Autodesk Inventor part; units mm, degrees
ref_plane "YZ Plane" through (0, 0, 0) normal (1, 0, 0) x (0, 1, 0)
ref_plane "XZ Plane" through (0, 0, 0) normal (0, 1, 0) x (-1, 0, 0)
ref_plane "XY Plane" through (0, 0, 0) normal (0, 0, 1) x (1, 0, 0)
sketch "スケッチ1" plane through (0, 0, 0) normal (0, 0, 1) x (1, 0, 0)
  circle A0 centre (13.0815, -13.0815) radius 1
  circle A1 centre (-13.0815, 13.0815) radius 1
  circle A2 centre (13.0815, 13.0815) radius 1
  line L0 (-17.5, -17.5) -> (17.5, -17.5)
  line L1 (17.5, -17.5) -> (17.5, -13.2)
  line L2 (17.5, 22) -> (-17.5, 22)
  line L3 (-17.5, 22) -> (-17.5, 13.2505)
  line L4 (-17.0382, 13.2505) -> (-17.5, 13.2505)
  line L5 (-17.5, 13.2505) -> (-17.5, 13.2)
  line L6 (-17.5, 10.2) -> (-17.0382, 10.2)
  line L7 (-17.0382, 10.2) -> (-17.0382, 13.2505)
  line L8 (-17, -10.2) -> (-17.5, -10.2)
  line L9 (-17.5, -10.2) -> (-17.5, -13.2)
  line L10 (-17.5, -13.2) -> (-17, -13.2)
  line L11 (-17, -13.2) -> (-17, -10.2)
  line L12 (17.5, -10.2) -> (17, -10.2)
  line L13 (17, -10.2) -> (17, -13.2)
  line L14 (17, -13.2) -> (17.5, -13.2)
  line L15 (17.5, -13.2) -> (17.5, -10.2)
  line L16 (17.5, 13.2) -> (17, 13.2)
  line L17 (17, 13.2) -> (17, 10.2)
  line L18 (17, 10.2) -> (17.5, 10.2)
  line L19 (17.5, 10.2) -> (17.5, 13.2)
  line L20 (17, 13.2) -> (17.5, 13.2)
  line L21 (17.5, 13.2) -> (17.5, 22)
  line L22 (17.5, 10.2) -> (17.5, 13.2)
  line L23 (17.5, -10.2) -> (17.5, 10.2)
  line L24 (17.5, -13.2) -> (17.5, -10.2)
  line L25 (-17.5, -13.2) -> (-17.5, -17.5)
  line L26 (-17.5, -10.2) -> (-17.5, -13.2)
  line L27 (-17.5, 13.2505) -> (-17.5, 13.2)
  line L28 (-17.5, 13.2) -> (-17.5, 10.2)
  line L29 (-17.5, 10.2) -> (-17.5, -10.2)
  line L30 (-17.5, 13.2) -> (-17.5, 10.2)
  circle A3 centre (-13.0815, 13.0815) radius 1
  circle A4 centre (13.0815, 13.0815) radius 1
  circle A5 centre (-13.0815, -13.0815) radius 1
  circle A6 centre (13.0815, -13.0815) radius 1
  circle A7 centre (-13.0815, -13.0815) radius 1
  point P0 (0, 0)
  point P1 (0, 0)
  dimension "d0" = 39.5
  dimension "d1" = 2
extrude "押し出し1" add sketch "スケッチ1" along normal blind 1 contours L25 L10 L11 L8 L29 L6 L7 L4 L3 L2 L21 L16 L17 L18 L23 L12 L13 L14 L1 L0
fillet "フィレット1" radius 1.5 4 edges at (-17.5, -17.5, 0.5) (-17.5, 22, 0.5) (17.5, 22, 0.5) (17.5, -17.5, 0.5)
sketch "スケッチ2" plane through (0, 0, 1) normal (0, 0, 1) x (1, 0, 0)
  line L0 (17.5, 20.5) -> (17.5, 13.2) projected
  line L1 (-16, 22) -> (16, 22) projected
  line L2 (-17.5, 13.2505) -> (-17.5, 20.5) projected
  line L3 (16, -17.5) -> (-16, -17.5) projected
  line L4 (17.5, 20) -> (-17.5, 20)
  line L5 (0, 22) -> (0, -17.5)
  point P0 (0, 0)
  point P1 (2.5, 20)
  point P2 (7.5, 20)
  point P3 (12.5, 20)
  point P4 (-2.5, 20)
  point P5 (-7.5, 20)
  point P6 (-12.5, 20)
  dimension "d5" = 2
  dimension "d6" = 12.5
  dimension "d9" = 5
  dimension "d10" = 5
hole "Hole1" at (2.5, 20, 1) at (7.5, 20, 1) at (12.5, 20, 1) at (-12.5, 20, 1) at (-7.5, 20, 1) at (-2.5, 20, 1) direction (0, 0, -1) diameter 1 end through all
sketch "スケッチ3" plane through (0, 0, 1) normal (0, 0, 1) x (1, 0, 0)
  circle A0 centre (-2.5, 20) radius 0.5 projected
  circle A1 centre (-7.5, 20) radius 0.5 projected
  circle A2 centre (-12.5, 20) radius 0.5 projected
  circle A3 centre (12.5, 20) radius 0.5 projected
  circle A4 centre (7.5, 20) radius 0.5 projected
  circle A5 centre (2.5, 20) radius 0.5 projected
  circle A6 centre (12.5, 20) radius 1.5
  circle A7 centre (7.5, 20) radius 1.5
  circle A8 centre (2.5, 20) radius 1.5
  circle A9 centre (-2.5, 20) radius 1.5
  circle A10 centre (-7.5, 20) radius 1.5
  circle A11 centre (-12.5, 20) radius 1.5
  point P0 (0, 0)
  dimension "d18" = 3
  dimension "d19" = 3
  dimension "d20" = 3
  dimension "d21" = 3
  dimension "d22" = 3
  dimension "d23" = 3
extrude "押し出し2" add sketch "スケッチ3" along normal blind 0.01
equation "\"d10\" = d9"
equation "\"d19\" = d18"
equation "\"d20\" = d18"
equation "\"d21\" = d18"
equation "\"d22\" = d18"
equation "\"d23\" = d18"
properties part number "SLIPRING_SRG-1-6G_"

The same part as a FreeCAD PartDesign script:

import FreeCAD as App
import Part
import Sketcher

V = App.Vector


def edges_at(feature, points):
    """Names of the edges that pass closest to the given points."""
    edges = feature.Shape.Edges
    near = lambda p: min(range(len(edges)), key=lambda i: edges[i].distToShape(Part.Vertex(*p))[0])
    return sorted({f"Edge{near(p) + 1}" for p in points})

doc = App.newDocument("Part")
body = doc.addObject("PartDesign::Body", "Body")

# Sketch on XY plane
sketch1 = doc.addObject("Sketcher::SketchObject", "Sketch")
body.addObject(sketch1)
sketch1.AttachmentSupport = (doc.XY_Plane, [""])
sketch1.MapMode = "FlatFace"
sketch1.addGeometry(Part.LineSegment(V(-17.5, -13.2, 0), V(-17.5, -17.5, 0)), False)
sketch1.addGeometry(Part.LineSegment(V(-17.5, -17.5, 0), V(17.5, -17.5, 0)), False)
sketch1.addGeometry(Part.LineSegment(V(17.5, -17.5, 0), V(17.5, -13.2, 0)), False)
sketch1.addGeometry(Part.LineSegment(V(17.5, -13.2, 0), V(17, -13.2, 0)), False)
sketch1.addGeometry(Part.LineSegment(V(17, -13.2, 0), V(17, -10.2, 0)), False)
sketch1.addGeometry(Part.LineSegment(V(17, -10.2, 0), V(17.5, -10.2, 0)), False)
sketch1.addGeometry(Part.LineSegment(V(17.5, -10.2, 0), V(17.5, 10.2, 0)), False)
sketch1.addGeometry(Part.LineSegment(V(17.5, 10.2, 0), V(17, 10.2, 0)), False)
sketch1.addGeometry(Part.LineSegment(V(17, 10.2, 0), V(17, 13.2, 0)), False)
sketch1.addGeometry(Part.LineSegment(V(17, 13.2, 0), V(17.5, 13.2, 0)), False)
sketch1.addGeometry(Part.LineSegment(V(17.5, 13.2, 0), V(17.5, 22, 0)), False)
sketch1.addGeometry(Part.LineSegment(V(17.5, 22, 0), V(-17.5, 22, 0)), False)
sketch1.addGeometry(Part.LineSegment(V(-17.5, 22, 0), V(-17.5, 13.25, 0)), False)
sketch1.addGeometry(Part.LineSegment(V(-17.5, 13.25, 0), V(-17.04, 13.25, 0)), False)
sketch1.addGeometry(Part.LineSegment(V(-17.04, 13.25, 0), V(-17.04, 10.2, 0)), False)
sketch1.addGeometry(Part.LineSegment(V(-17.04, 10.2, 0), V(-17.5, 10.2, 0)), False)
sketch1.addGeometry(Part.LineSegment(V(-17.5, 10.2, 0), V(-17.5, -10.2, 0)), False)
sketch1.addGeometry(Part.LineSegment(V(-17.5, -10.2, 0), V(-17, -10.2, 0)), False)
sketch1.addGeometry(Part.LineSegment(V(-17, -10.2, 0), V(-17, -13.2, 0)), False)
sketch1.addGeometry(Part.LineSegment(V(-17, -13.2, 0), V(-17.5, -13.2, 0)), False)
sketch1.addGeometry(Part.Circle(V(-13.08, -13.08, 0), V(0, 0, 1), 1), False)
sketch1.addGeometry(Part.Circle(V(13.08, -13.08, 0), V(0, 0, 1), 1), False)
sketch1.addGeometry(Part.Circle(V(-13.08, 13.08, 0), V(0, 0, 1), 1), False)
sketch1.addGeometry(Part.Circle(V(13.08, 13.08, 0), V(0, 0, 1), 1), False)
sketch1.addConstraint(Sketcher.Constraint("Coincident", 0, 2, 1, 1))
sketch1.addConstraint(Sketcher.Constraint("Coincident", 1, 2, 2, 1))
sketch1.addConstraint(Sketcher.Constraint("Coincident", 2, 2, 3, 1))
sketch1.addConstraint(Sketcher.Constraint("Coincident", 3, 2, 4, 1))
sketch1.addConstraint(Sketcher.Constraint("Coincident", 4, 2, 5, 1))
sketch1.addConstraint(Sketcher.Constraint("Coincident", 5, 2, 6, 1))
sketch1.addConstraint(Sketcher.Constraint("Coincident", 6, 2, 7, 1))
sketch1.addConstraint(Sketcher.Constraint("Coincident", 7, 2, 8, 1))
sketch1.addConstraint(Sketcher.Constraint("Coincident", 8, 2, 9, 1))
sketch1.addConstraint(Sketcher.Constraint("Coincident", 9, 2, 10, 1))
sketch1.addConstraint(Sketcher.Constraint("Coincident", 10, 2, 11, 1))
sketch1.addConstraint(Sketcher.Constraint("Coincident", 11, 2, 12, 1))
sketch1.addConstraint(Sketcher.Constraint("Coincident", 12, 2, 13, 1))
sketch1.addConstraint(Sketcher.Constraint("Coincident", 13, 2, 14, 1))
sketch1.addConstraint(Sketcher.Constraint("Coincident", 14, 2, 15, 1))
sketch1.addConstraint(Sketcher.Constraint("Coincident", 15, 2, 16, 1))
sketch1.addConstraint(Sketcher.Constraint("Coincident", 16, 2, 17, 1))
sketch1.addConstraint(Sketcher.Constraint("Coincident", 17, 2, 18, 1))
sketch1.addConstraint(Sketcher.Constraint("Coincident", 18, 2, 19, 1))
sketch1.addConstraint(Sketcher.Constraint("Coincident", 19, 2, 0, 1))
sketch1.addConstraint(Sketcher.Constraint("Vertical", 0))
sketch1.addConstraint(Sketcher.Constraint("Horizontal", 1))
sketch1.addConstraint(Sketcher.Constraint("Vertical", 2))
sketch1.addConstraint(Sketcher.Constraint("Horizontal", 3))
sketch1.addConstraint(Sketcher.Constraint("Vertical", 4))
sketch1.addConstraint(Sketcher.Constraint("Horizontal", 5))
sketch1.addConstraint(Sketcher.Constraint("Vertical", 6))
sketch1.addConstraint(Sketcher.Constraint("Horizontal", 7))
sketch1.addConstraint(Sketcher.Constraint("Vertical", 8))
sketch1.addConstraint(Sketcher.Constraint("Horizontal", 9))
sketch1.addConstraint(Sketcher.Constraint("Vertical", 10))
sketch1.addConstraint(Sketcher.Constraint("Horizontal", 11))
sketch1.addConstraint(Sketcher.Constraint("Vertical", 12))
sketch1.addConstraint(Sketcher.Constraint("Horizontal", 13))
sketch1.addConstraint(Sketcher.Constraint("Vertical", 14))
sketch1.addConstraint(Sketcher.Constraint("Horizontal", 15))
sketch1.addConstraint(Sketcher.Constraint("Vertical", 16))
sketch1.addConstraint(Sketcher.Constraint("Horizontal", 17))
sketch1.addConstraint(Sketcher.Constraint("Vertical", 18))
sketch1.addConstraint(Sketcher.Constraint("Horizontal", 19))
sketch1.addConstraint(Sketcher.Constraint("Equal", 20, 21))
sketch1.addConstraint(Sketcher.Constraint("Equal", 21, 22))
sketch1.addConstraint(Sketcher.Constraint("Equal", 22, 23))
sketch1.addConstraint(Sketcher.Constraint("Symmetric", 21, 3, 22, 3, -1, 1))
sketch1.addConstraint(Sketcher.Constraint("Symmetric", 20, 3, 23, 3, -1, 1))
sketch1.addConstraint(Sketcher.Constraint("Symmetric", 5, 2, 15, 2, -1, 1))
sketch1.addConstraint(Sketcher.Constraint("Symmetric", 7, 2, 17, 2, -1, 1))
sketch1.addConstraint(Sketcher.Constraint("Symmetric", 9, 2, 19, 2, -1, 1))
sketch1.addConstraint(Sketcher.Constraint("Symmetric", 20, 3, 21, 3, -2))
sketch1.addConstraint(Sketcher.Constraint("Symmetric", 4, 2, 17, 2, -2))
sketch1.addConstraint(Sketcher.Constraint("Symmetric", 2, 2, 19, 2, -2))
sketch1.addConstraint(Sketcher.Constraint("Vertical", 2, 2, 5, 2))
sketch1.addConstraint(Sketcher.Constraint("Vertical", 0, 2, 11, 2))
sketch1.addConstraint(Sketcher.Constraint("Diameter", 20, 2.0))
sketch1.addConstraint(Sketcher.Constraint("DistanceX", 1, 1, 1, 2, 35.0))
sketch1.addConstraint(Sketcher.Constraint("DistanceY", 4, 1, 4, 2, 3.0))
sketch1.addConstraint(Sketcher.Constraint("DistanceX", 3, 2, 3, 1, 0.5))
sketch1.addConstraint(Sketcher.Constraint("DistanceY", 0, 2, 0, 1, 4.3))
sketch1.addConstraint(Sketcher.Constraint("DistanceY", 6, 1, 6, 2, 20.4))
sketch1.addConstraint(Sketcher.Constraint("DistanceY", 10, 1, 10, 2, 8.8))
sketch1.addConstraint(Sketcher.Constraint("DistanceX", 13, 1, 13, 2, 0.4618))
sketch1.addConstraint(Sketcher.Constraint("DistanceY", 12, 2, 12, 1, 8.7495))
sketch1.addConstraint(Sketcher.Constraint("DistanceX", 20, 3, 21, 3, 26.163))
sketch1.addConstraint(Sketcher.Constraint("DistanceY", 20, 3, 22, 3, 26.163))
pad1 = doc.addObject("PartDesign::Pad", "Pad")
body.addObject(pad1)
pad1.Profile = sketch1
pad1.Length = 1
doc.recompute()

fillet = doc.addObject("PartDesign::Fillet", "Fillet")
body.addObject(fillet)
fillet.Base = (pad1, edges_at(pad1, [
    (-17.5, -17.5, 0.5),
    (-17.5, 22, 0.5),
    (17.5, 22, 0.5),
    (17.5, -17.5, 0.5),
]))
fillet.Radius = 1.5

# Sketch on XY plane
sketch2 = doc.addObject("Sketcher::SketchObject", "Sketch001")
body.addObject(sketch2)
sketch2.AttachmentSupport = (doc.XY_Plane, [""])
sketch2.MapMode = "FlatFace"
sketch2.AttachmentOffset = App.Placement(V(0, 0, 1), App.Rotation())
sketch2.addGeometry(Part.Circle(V(2.5, 20, 0), V(0, 0, 1), 0.5), False)
sketch2.addGeometry(Part.Circle(V(7.5, 20, 0), V(0, 0, 1), 0.5), False)
sketch2.addGeometry(Part.Circle(V(12.5, 20, 0), V(0, 0, 1), 0.5), False)
sketch2.addGeometry(Part.Circle(V(-12.5, 20, 0), V(0, 0, 1), 0.5), False)
sketch2.addGeometry(Part.Circle(V(-7.5, 20, 0), V(0, 0, 1), 0.5), False)
sketch2.addGeometry(Part.Circle(V(-2.5, 20, 0), V(0, 0, 1), 0.5), False)
sketch2.addConstraint(Sketcher.Constraint("Equal", 0, 1))
sketch2.addConstraint(Sketcher.Constraint("Equal", 1, 2))
sketch2.addConstraint(Sketcher.Constraint("Equal", 2, 3))
sketch2.addConstraint(Sketcher.Constraint("Equal", 3, 4))
sketch2.addConstraint(Sketcher.Constraint("Equal", 4, 5))
sketch2.addConstraint(Sketcher.Constraint("Symmetric", 2, 3, 3, 3, -2))
sketch2.addConstraint(Sketcher.Constraint("Symmetric", 1, 3, 4, 3, -2))
sketch2.addConstraint(Sketcher.Constraint("Symmetric", 0, 3, 5, 3, -2))
sketch2.addConstraint(Sketcher.Constraint("Horizontal", 0, 3, 1, 3))
sketch2.addConstraint(Sketcher.Constraint("Horizontal", 1, 3, 2, 3))
sketch2.addConstraint(Sketcher.Constraint("Diameter", 0, 1.0))
sketch2.addConstraint(Sketcher.Constraint("DistanceY", -1, 1, 0, 3, 20.0))
sketch2.addConstraint(Sketcher.Constraint("DistanceX", 0, 3, 1, 3, 5.0))
sketch2.addConstraint(Sketcher.Constraint("DistanceX", 1, 3, 2, 3, 5.0))
sketch2.addConstraint(Sketcher.Constraint("DistanceX", 3, 3, 0, 3, 15.0))
doc.recompute()
hole = doc.addObject("PartDesign::Hole", "Hole")
body.addObject(hole)
hole.Profile = sketch2
hole.ThreadType = "None"
hole.Diameter = 1
hole.DepthType = "ThroughAll"

# Sketch on XY plane
sketch3 = doc.addObject("Sketcher::SketchObject", "Sketch002")
body.addObject(sketch3)
sketch3.AttachmentSupport = (doc.XY_Plane, [""])
sketch3.MapMode = "FlatFace"
sketch3.AttachmentOffset = App.Placement(V(0, 0, 1), App.Rotation())
sketch3.addGeometry(Part.Circle(V(12.5, 20, 0), V(0, 0, 1), 1.5), False)
sketch3.addGeometry(Part.Circle(V(12.5, 20, 0), V(0, 0, 1), 0.5), False)
sketch3.addGeometry(Part.Circle(V(7.5, 20, 0), V(0, 0, 1), 1.5), False)
sketch3.addGeometry(Part.Circle(V(7.5, 20, 0), V(0, 0, 1), 0.5), False)
sketch3.addGeometry(Part.Circle(V(2.5, 20, 0), V(0, 0, 1), 1.5), False)
sketch3.addGeometry(Part.Circle(V(2.5, 20, 0), V(0, 0, 1), 0.5), False)
sketch3.addGeometry(Part.Circle(V(-2.5, 20, 0), V(0, 0, 1), 1.5), False)
sketch3.addGeometry(Part.Circle(V(-2.5, 20, 0), V(0, 0, 1), 0.5), False)
sketch3.addGeometry(Part.Circle(V(-7.5, 20, 0), V(0, 0, 1), 1.5), False)
sketch3.addGeometry(Part.Circle(V(-7.5, 20, 0), V(0, 0, 1), 0.5), False)
sketch3.addGeometry(Part.Circle(V(-12.5, 20, 0), V(0, 0, 1), 1.5), False)
sketch3.addGeometry(Part.Circle(V(-12.5, 20, 0), V(0, 0, 1), 0.5), False)
sketch3.addConstraint(Sketcher.Constraint("Coincident", 1, 3, 0, 3))
sketch3.addConstraint(Sketcher.Constraint("Coincident", 3, 3, 2, 3))
sketch3.addConstraint(Sketcher.Constraint("Coincident", 5, 3, 4, 3))
sketch3.addConstraint(Sketcher.Constraint("Coincident", 7, 3, 6, 3))
sketch3.addConstraint(Sketcher.Constraint("Coincident", 9, 3, 8, 3))
sketch3.addConstraint(Sketcher.Constraint("Coincident", 11, 3, 10, 3))
sketch3.addConstraint(Sketcher.Constraint("Equal", 0, 2))
sketch3.addConstraint(Sketcher.Constraint("Equal", 1, 3))
sketch3.addConstraint(Sketcher.Constraint("Equal", 2, 4))
sketch3.addConstraint(Sketcher.Constraint("Equal", 3, 5))
sketch3.addConstraint(Sketcher.Constraint("Equal", 4, 6))
sketch3.addConstraint(Sketcher.Constraint("Equal", 5, 7))
sketch3.addConstraint(Sketcher.Constraint("Equal", 6, 8))
sketch3.addConstraint(Sketcher.Constraint("Equal", 7, 9))
sketch3.addConstraint(Sketcher.Constraint("Equal", 8, 10))
sketch3.addConstraint(Sketcher.Constraint("Equal", 9, 11))
sketch3.addConstraint(Sketcher.Constraint("Symmetric", 4, 3, 6, 3, -2))
sketch3.addConstraint(Sketcher.Constraint("Symmetric", 2, 3, 8, 3, -2))
sketch3.addConstraint(Sketcher.Constraint("Symmetric", 0, 3, 10, 3, -2))
sketch3.addConstraint(Sketcher.Constraint("Horizontal", 1, 3, 2, 3))
sketch3.addConstraint(Sketcher.Constraint("Horizontal", 3, 3, 4, 3))
sketch3.addConstraint(Sketcher.Constraint("Diameter", 0, 3.0))
sketch3.addConstraint(Sketcher.Constraint("Diameter", 1, 1.0))
sketch3.addConstraint(Sketcher.Constraint("DistanceY", -1, 1, 0, 3, 20.0))
sketch3.addConstraint(Sketcher.Constraint("DistanceX", 2, 3, 0, 3, 5.0))
sketch3.addConstraint(Sketcher.Constraint("DistanceX", 4, 3, 2, 3, 5.0))
sketch3.addConstraint(Sketcher.Constraint("DistanceX", 6, 3, 4, 3, 5.0))
pad2 = doc.addObject("PartDesign::Pad", "Pad001")
body.addObject(pad2)
pad2.Profile = sketch3
pad2.Length = 0.01

doc.recompute()
